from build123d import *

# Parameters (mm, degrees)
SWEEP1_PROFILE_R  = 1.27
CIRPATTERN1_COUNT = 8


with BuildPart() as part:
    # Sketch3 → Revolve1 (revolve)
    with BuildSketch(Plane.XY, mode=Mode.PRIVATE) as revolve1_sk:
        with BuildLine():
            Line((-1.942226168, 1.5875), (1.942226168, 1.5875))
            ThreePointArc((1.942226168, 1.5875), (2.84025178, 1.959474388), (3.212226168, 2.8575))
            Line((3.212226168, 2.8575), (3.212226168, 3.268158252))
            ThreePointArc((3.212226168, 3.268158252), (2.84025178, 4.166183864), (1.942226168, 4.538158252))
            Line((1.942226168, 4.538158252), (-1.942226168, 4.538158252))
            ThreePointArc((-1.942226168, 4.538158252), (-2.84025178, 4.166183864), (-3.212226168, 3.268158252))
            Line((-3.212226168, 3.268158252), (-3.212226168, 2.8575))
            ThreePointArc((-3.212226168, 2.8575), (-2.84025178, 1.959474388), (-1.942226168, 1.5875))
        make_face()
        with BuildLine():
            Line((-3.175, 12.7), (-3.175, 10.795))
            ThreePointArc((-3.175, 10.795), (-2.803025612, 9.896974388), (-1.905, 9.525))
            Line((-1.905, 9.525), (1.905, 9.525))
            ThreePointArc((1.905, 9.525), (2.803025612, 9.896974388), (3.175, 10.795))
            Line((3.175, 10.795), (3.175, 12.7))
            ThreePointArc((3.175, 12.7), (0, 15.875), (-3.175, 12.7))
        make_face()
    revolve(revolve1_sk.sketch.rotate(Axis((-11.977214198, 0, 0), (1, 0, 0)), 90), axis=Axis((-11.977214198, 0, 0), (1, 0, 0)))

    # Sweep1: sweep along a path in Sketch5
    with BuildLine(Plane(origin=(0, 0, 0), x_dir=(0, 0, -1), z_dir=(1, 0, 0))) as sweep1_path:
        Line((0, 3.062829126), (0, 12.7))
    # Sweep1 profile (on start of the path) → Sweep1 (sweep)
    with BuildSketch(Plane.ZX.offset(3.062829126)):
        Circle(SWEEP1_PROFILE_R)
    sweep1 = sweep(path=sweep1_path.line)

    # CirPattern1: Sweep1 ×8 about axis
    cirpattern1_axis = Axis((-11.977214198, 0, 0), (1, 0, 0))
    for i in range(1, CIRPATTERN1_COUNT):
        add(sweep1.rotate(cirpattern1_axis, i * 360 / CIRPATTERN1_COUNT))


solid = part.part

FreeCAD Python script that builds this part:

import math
import FreeCAD as App
import Part
import Sketcher

V = App.Vector
Q = App.Units.Quantity

doc = App.newDocument("Part")
body = doc.addObject("PartDesign::Body", "Body")
body.AllowCompound = True

# Sketch on XY plane
sketch1 = doc.addObject("Sketcher::SketchObject", "Sketch")
body.addObject(sketch1)
sketch1.AttachmentSupport = (doc.XY_Plane, [""])
sketch1.MapMode = "FlatFace"
sketch1.addGeometry(Part.LineSegment(V(-1.94, 1.59, 0), V(1.94, 1.59, 0)), False)
sketch1.addGeometry(Part.ArcOfCircle(Part.Circle(V(1.94, 2.86, 0), V(0, 0, 1), 1.27), math.radians(-90), math.radians(0)), False)
sketch1.addGeometry(Part.LineSegment(V(3.21, 2.86, 0), V(3.21, 3.27, 0)), False)
sketch1.addGeometry(Part.ArcOfCircle(Part.Circle(V(1.94, 3.27, 0), V(0, 0, 1), 1.27), math.radians(0), math.radians(90)), False)
sketch1.addGeometry(Part.LineSegment(V(1.94, 4.54, 0), V(-1.94, 4.54, 0)), False)
sketch1.addGeometry(Part.ArcOfCircle(Part.Circle(V(-1.94, 3.27, 0), V(0, 0, 1), 1.27), math.radians(90), math.radians(180)), False)
sketch1.addGeometry(Part.LineSegment(V(-3.21, 3.27, 0), V(-3.21, 2.86, 0)), False)
sketch1.addGeometry(Part.ArcOfCircle(Part.Circle(V(-1.94, 2.86, 0), V(0, 0, 1), 1.27), math.radians(180), math.radians(270)), False)
sketch1.addGeometry(Part.LineSegment(V(-3.17, 12.7, 0), V(-3.17, 10.79, 0)), False)
sketch1.addGeometry(Part.ArcOfCircle(Part.Circle(V(-1.91, 10.79, 0), V(0, 0, 1), 1.27), math.radians(180), math.radians(270)), False)
sketch1.addGeometry(Part.LineSegment(V(-1.91, 9.53, 0), V(1.91, 9.53, 0)), False)
sketch1.addGeometry(Part.ArcOfCircle(Part.Circle(V(1.91, 10.79, 0), V(0, 0, 1), 1.27), math.radians(-90), math.radians(0)), False)
sketch1.addGeometry(Part.LineSegment(V(3.17, 10.79, 0), V(3.17, 12.7, 0)), False)
sketch1.addGeometry(Part.ArcOfCircle(Part.Circle(V(0, 12.7, 0), V(0, 0, 1), 3.17), math.radians(0), math.radians(180)), False)
sketch1.addConstraint(Sketcher.Constraint("Tangent", 0, 2, 1, 1))
sketch1.addConstraint(Sketcher.Constraint("Tangent", 1, 2, 2, 1))
sketch1.addConstraint(Sketcher.Constraint("Tangent", 2, 2, 3, 1))
sketch1.addConstraint(Sketcher.Constraint("Tangent", 3, 2, 4, 1))
sketch1.addConstraint(Sketcher.Constraint("Tangent", 4, 2, 5, 1))
sketch1.addConstraint(Sketcher.Constraint("Tangent", 5, 2, 6, 1))
sketch1.addConstraint(Sketcher.Constraint("Tangent", 6, 2, 7, 1))
sketch1.addConstraint(Sketcher.Constraint("Tangent", 7, 2, 0, 1))
sketch1.addConstraint(Sketcher.Constraint("Tangent", 8, 2, 9, 1))
sketch1.addConstraint(Sketcher.Constraint("Tangent", 9, 2, 10, 1))
sketch1.addConstraint(Sketcher.Constraint("Tangent", 10, 2, 11, 1))
sketch1.addConstraint(Sketcher.Constraint("Tangent", 11, 2, 12, 1))
sketch1.addConstraint(Sketcher.Constraint("Tangent", 12, 2, 13, 1))
sketch1.addConstraint(Sketcher.Constraint("Tangent", 13, 2, 8, 1))
sketch1.addConstraint(Sketcher.Constraint("Horizontal", 0))
sketch1.addConstraint(Sketcher.Constraint("Vertical", 2))
sketch1.addConstraint(Sketcher.Constraint("Horizontal", 4))
sketch1.addConstraint(Sketcher.Constraint("Vertical", 6))
sketch1.addConstraint(Sketcher.Constraint("Vertical", 8))
sketch1.addConstraint(Sketcher.Constraint("Horizontal", 10))
sketch1.addConstraint(Sketcher.Constraint("Vertical", 12))
sketch1.addConstraint(Sketcher.Constraint("Equal", 1, 3))
sketch1.addConstraint(Sketcher.Constraint("Equal", 3, 5))
sketch1.addConstraint(Sketcher.Constraint("Equal", 5, 7))
sketch1.addConstraint(Sketcher.Constraint("Equal", 7, 9))
sketch1.addConstraint(Sketcher.Constraint("Equal", 9, 11))
sketch1.addConstraint(Sketcher.Constraint("PointOnObject", 13, 3, -2))
sketch1.addConstraint(Sketcher.Constraint("Radius", 1, Q("0.05 in")))
sketch1.addConstraint(Sketcher.Constraint("Radius", 13, Q("0.125 in")))
sketch1.addConstraint(Sketcher.Constraint("DistanceY", -1, 1, 13, 3, Q("0.5 in")))
sketch1.addConstraint(Sketcher.Constraint("DistanceY", 8, 2, 8, 1, Q("0.075 in")))
sketch1.addConstraint(Sketcher.Constraint("DistanceY", -1, 1, 0, 2, Q("0.0625 in")))
sketch1.addConstraint(Sketcher.Constraint("DistanceY", 2, 1, 2, 2, 0.410658))
sketch1.addConstraint(Sketcher.Constraint("DistanceX", 0, 1, 0, 2, 3.884452))
sketch1.addConstraint(Sketcher.Constraint("DistanceX", -1, 1, 1, 3, 1.942226))
revolution = doc.addObject("PartDesign::Revolution", "Revolution")
body.addObject(revolution)
revolution.Profile = sketch1
revolution.ReferenceAxis = (sketch1, ["H_Axis"])
revolution.Angle = 360

# Sketch on XZ plane
sketch2 = doc.addObject("Sketcher::SketchObject", "Sketch001")
body.addObject(sketch2)
sketch2.AttachmentSupport = (doc.XZ_Plane, [""])
sketch2.MapMode = "FlatFace"
sketch2.AttachmentOffset = App.Placement(V(0, 0, -3.062829), App.Rotation())
sketch2.addGeometry(Part.Circle(V(0, 0, 0), V(0, 0, 1), 1.3), False)
sketch2.addConstraint(Sketcher.Constraint("Coincident", 0, 3, -1, 1))
sketch2.addConstraint(Sketcher.Constraint("Diameter", 0, Q("0.1 in")))

# Sketch on XY plane
sketch3 = doc.addObject("Sketcher::SketchObject", "Sketch002")
body.addObject(sketch3)
sketch3.AttachmentSupport = (doc.XY_Plane, [""])
sketch3.MapMode = "FlatFace"
sketch3.addGeometry(Part.LineSegment(V(0, 3, 0), V(0, 13, 0)), False)
sketch3.addConstraint(Sketcher.Constraint("Vertical", 0))
sketch3.addConstraint(Sketcher.Constraint("PointOnObject", 0, 1, -2))
sketch3.addConstraint(Sketcher.Constraint("DistanceY", -1, 1, 0, 2, Q("0.5 in")))
sketch3.addConstraint(Sketcher.Constraint("DistanceY", 0, 1, 0, 2, 9.637171))
doc.recompute()

additivepipe = doc.addObject("PartDesign::AdditivePipe", "AdditivePipe")
body.addObject(additivepipe)
additivepipe.Profile = sketch2
additivepipe.Spine = (sketch3, ["Edge1"])
doc.recompute()

polarpattern = doc.addObject("PartDesign::PolarPattern", "PolarPattern")
body.addObject(polarpattern)
polarpattern.Originals = [additivepipe]
polarpattern.Axis = (doc.X_Axis, [""])
polarpattern.Angle = 360
polarpattern.Occurrences = 8
body.Tip = polarpattern

doc.recompute()
